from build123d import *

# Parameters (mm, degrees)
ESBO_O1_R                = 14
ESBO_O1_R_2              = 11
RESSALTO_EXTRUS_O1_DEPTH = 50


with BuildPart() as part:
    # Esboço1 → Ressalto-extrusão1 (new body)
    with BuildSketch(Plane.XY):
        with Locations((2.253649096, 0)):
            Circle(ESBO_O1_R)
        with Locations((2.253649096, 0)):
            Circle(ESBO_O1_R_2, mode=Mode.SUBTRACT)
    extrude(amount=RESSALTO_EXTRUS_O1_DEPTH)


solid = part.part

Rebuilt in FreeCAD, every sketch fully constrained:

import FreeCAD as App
import Part
import Sketcher
from FreeCAD import Vector

doc = App.newDocument("Part")
params = doc.addObject("Spreadsheet::Sheet", "Params")
for row, (alias, value) in enumerate([
    ("sketch1_diameter", "28 mm"),
    ("sketch1_diameter2", "22 mm"),
    ("pad1_length", "50 mm"),
], start=1):
    params.set(f"A{row}", alias)
    params.set(f"B{row}", "=" + value)
    params.setAlias(f"B{row}", alias)

body = doc.addObject("PartDesign::Body", "Body")

# Sketch on XY plane
sketch1 = doc.addObject("Sketcher::SketchObject", "Sketch")
body.addObject(sketch1)
sketch1.AttachmentSupport = (doc.XY_Plane, [""])
sketch1.MapMode = "FlatFace"
sketch1.addGeometry([
    Part.Circle(Vector(2, 0, 0), Vector(0, 0, 1), 14),
    Part.Circle(Vector(2, 0, 0), Vector(0, 0, 1), 11),
], False)
sketch1.addConstraint([
    Sketcher.Constraint("Coincident", 1, 3, 0, 3),
    Sketcher.Constraint("PointOnObject", 0, 3, -1),
    Sketcher.Constraint("Diameter", 0, 28.0),
    Sketcher.Constraint("Diameter", 1, 22.0),
    Sketcher.Constraint("DistanceX", -1, 1, 0, 3, 2.253649),
])
sketch1.setExpression("Constraints[2]", "Params.sketch1_diameter")
sketch1.setExpression("Constraints[3]", "Params.sketch1_diameter2")
pad1 = doc.addObject("PartDesign::Pad", "Pad")
body.addObject(pad1)
pad1.Profile = sketch1
pad1.setExpression("Length", "Params.pad1_length")

doc.recompute()
